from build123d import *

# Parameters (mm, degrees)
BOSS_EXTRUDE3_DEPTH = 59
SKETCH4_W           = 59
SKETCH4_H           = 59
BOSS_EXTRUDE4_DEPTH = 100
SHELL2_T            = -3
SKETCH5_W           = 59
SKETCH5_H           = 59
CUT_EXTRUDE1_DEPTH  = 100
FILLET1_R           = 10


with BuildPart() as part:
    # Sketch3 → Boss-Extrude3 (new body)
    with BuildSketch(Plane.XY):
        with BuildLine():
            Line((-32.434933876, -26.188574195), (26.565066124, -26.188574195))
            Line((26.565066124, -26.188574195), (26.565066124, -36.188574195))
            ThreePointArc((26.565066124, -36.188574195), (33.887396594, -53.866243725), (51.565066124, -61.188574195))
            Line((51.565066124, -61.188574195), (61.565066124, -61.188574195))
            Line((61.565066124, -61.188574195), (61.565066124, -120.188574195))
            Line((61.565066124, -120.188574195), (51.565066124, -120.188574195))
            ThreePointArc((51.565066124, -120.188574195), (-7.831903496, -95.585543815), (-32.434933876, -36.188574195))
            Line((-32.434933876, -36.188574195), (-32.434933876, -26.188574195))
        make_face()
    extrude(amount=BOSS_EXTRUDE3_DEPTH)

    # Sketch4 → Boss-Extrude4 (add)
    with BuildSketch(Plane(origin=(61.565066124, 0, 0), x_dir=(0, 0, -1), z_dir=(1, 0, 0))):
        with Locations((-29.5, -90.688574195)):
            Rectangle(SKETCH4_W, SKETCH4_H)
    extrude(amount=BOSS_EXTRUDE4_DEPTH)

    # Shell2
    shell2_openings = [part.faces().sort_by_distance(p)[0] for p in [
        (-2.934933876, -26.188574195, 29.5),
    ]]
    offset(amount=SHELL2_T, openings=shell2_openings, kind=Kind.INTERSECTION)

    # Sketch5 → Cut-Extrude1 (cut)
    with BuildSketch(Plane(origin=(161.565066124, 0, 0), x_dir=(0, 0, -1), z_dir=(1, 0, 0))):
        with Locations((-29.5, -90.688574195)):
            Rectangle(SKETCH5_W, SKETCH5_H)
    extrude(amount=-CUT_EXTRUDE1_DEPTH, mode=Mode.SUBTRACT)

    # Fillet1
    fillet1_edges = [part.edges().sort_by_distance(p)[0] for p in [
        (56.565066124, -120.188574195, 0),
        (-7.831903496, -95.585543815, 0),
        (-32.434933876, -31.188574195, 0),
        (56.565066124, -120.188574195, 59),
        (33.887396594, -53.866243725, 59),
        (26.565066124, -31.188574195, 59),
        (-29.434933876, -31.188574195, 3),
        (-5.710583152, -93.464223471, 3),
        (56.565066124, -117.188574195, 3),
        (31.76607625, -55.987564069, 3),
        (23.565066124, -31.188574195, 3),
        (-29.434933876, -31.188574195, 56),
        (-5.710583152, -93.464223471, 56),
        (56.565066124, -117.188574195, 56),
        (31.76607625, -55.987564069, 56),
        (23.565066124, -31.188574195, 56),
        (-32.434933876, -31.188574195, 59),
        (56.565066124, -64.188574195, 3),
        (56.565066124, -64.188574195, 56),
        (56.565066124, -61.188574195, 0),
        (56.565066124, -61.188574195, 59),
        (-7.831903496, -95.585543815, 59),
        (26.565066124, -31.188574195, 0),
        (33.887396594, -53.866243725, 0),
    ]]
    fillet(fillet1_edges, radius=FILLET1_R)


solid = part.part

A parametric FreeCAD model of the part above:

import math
import FreeCAD as App
import Part
import Sketcher
from FreeCAD import Vector
Q = App.Units.Quantity


def edges_at(feature, points):
    """Names of the edges that pass closest to the given points."""
    edges = feature.Shape.Edges
    near = lambda p: min(range(len(edges)), key=lambda i: edges[i].distToShape(Part.Vertex(*p))[0])
    return sorted({f"Edge{near(p) + 1}" for p in points})


def faces_at(feature, points):
    """Names of the faces that lie closest to the given points."""
    faces = feature.Shape.Faces
    near = lambda p: min(range(len(faces)), key=lambda i: faces[i].distToShape(Part.Vertex(*p))[0])
    return sorted({f"Face{near(p) + 1}" for p in points})


def add_polygon(sketch, points):
    """Adds a closed chain of lines whose ends are joined by coincident constraints."""
    first, n = sketch.GeometryCount, len(points)
    for a, b in zip(points, points[1:] + points[:1]):
        sketch.addGeometry(Part.LineSegment(App.Vector(*a, 0), App.Vector(*b, 0)), False)
    for i in range(n):
        sketch.addConstraint(Sketcher.Constraint("Coincident", first + i, 2, first + (i + 1) % n, 1))

doc = App.newDocument("Part")
body = doc.addObject("PartDesign::Body", "Body")

# Sketch on XY plane
sketch1 = doc.addObject("Sketcher::SketchObject", "Sketch")
body.addObject(sketch1)
sketch1.AttachmentSupport = (doc.XY_Plane, [""])
sketch1.MapMode = "FlatFace"
sketch1.addGeometry([
    Part.LineSegment(Vector(27, -26, 0), Vector(-32, -26, 0)),  # 0
    Part.LineSegment(Vector(-32, -26, 0), Vector(-32, -36, 0)),  # 1
    Part.ArcOfCircle(Part.Circle(Vector(52, -36, 0), Vector(0, 0, 1), 84), math.radians(180), math.radians(270)),  # 2
    Part.LineSegment(Vector(52, -120, 0), Vector(62, -120, 0)),  # 3
    Part.LineSegment(Vector(62, -120, 0), Vector(62, -61, 0)),  # 4
    Part.LineSegment(Vector(62, -61, 0), Vector(52, -61, 0)),  # 5
    Part.ArcOfCircle(Part.Circle(Vector(52, -36, 0), Vector(0, 0, 1), 25), math.radians(180), math.radians(270)),  # 6
    Part.LineSegment(Vector(27, -36, 0), Vector(27, -26, 0)),  # 7
], False)
sketch1.addConstraint([
    Sketcher.Constraint("Coincident", 0, 2, 1, 1),
    Sketcher.Constraint("Tangent", 1, 2, 2, 1),
    Sketcher.Constraint("Tangent", 2, 2, 3, 1),
    Sketcher.Constraint("Coincident", 3, 2, 4, 1),
    Sketcher.Constraint("Coincident", 4, 2, 5, 1),
    Sketcher.Constraint("Tangent", 5, 2, 6, 2),
    Sketcher.Constraint("Tangent", 6, 1, 7, 1),
    Sketcher.Constraint("Coincident", 7, 2, 0, 1),
    Sketcher.Constraint("Horizontal", 0),
    Sketcher.Constraint("Vertical", 1),
    Sketcher.Constraint("Horizontal", 3),
    Sketcher.Constraint("Vertical", 4),
    Sketcher.Constraint("Horizontal", 5),
    Sketcher.Constraint("Vertical", 7),
    Sketcher.Constraint("Coincident", 6, 3, 2, 3),
    Sketcher.Constraint("Equal", 5, 1),
    Sketcher.Constraint("Radius", 2, Q("84 mm")),
    Sketcher.Constraint("Radius", 6, Q("25 mm")),
    Sketcher.Constraint("DistanceX", 3, 1, 3, 2, Q("10 mm")),
    Sketcher.Constraint("DistanceX", -1, 1, 2, 3, Q("51.565066 mm")),
    Sketcher.Constraint("DistanceY", 2, 3, -1, 1, Q("36.188574 mm")),
])
pad1 = doc.addObject("PartDesign::Pad", "Pad")
body.addObject(pad1)
pad1.Profile = sketch1
pad1.Length = 59

# Sketch on YZ plane
sketch2 = doc.addObject("Sketcher::SketchObject", "Sketch001")
body.addObject(sketch2)
sketch2.AttachmentSupport = (doc.YZ_Plane, [""])
sketch2.MapMode = "FlatFace"
sketch2.AttachmentOffset = App.Placement(Vector(0, 0, 61.565066), App.Rotation())
add_polygon(sketch2, [(-61, 59), (-120, 59), (-120, 0), (-61, 0)])  # lines 0-3
sketch2.addConstraint([
    Sketcher.Constraint("Horizontal", 0),
    Sketcher.Constraint("Vertical", 1),
    Sketcher.Constraint("Horizontal", 2),
    Sketcher.Constraint("Vertical", 3),
    Sketcher.Constraint("PointOnObject", 1, 2, -1),
    Sketcher.Constraint("Equal", 2, 1),
    Sketcher.Constraint("DistanceX", 0, 2, 0, 1, Q("59 mm")),
    Sketcher.Constraint("DistanceX", 0, 2, -1, 1, Q("120.188574 mm")),
])
pad2 = doc.addObject("PartDesign::Pad", "Pad001")
body.addObject(pad2)
pad2.Profile = sketch2
pad2.Length = 100
doc.recompute()

thickness = doc.addObject("PartDesign::Thickness", "Thickness")
body.addObject(thickness)
thickness.Base = (pad2, faces_at(pad2, [(-2.935, -26.189, 29.5)]))
thickness.Value = 3
thickness.Reversed = True
thickness.Join = "Intersection"

# Sketch on YZ plane
sketch3 = doc.addObject("Sketcher::SketchObject", "Sketch002")
body.addObject(sketch3)
sketch3.AttachmentSupport = (doc.YZ_Plane, [""])
sketch3.MapMode = "FlatFace"
sketch3.AttachmentOffset = App.Placement(Vector(0, 0, 161.565066), App.Rotation())
add_polygon(sketch3, [(-61, 59), (-120, 59), (-120, 0), (-61, 0)])  # lines 0-3
sketch3.addConstraint([
    Sketcher.Constraint("Horizontal", 0),
    Sketcher.Constraint("Vertical", 1),
    Sketcher.Constraint("Horizontal", 2),
    Sketcher.Constraint("Vertical", 3),
    Sketcher.Constraint("PointOnObject", 1, 2, -1),
    Sketcher.Constraint("Equal", 2, 1),
    Sketcher.Constraint("DistanceX", 0, 2, 0, 1, Q("59 mm")),
    Sketcher.Constraint("DistanceX", 0, 2, -1, 1, Q("120.188574 mm")),
])
pocket1 = doc.addObject("PartDesign::Pocket", "Pocket")
body.addObject(pocket1)
pocket1.Profile = sketch3
pocket1.Length = 100
doc.recompute()

fillet = doc.addObject("PartDesign::Fillet", "Fillet")
body.addObject(fillet)
fillet.Base = (pocket1, edges_at(pocket1, [
    (56.565, -120.189, 0),
    (-7.832, -95.586, 0),
    (-32.435, -31.189, 0),
    (56.565, -120.189, 59),
    (33.887, -53.866, 59),
    (26.565, -31.189, 59),
    (-29.435, -31.189, 3),
    (-5.711, -93.464, 3),
    (56.565, -117.189, 3),
    (31.766, -55.988, 3),
    (23.565, -31.189, 3),
    (-29.435, -31.189, 56),
    (-5.711, -93.464, 56),
    (56.565, -117.189, 56),
    (31.766, -55.988, 56),
    (23.565, -31.189, 56),
    (-32.435, -31.189, 59),
    (56.565, -64.189, 3),
    (56.565, -64.189, 56),
    (56.565, -61.189, 0),
    (56.565, -61.189, 59),
    (-7.832, -95.586, 59),
    (26.565, -31.189, 0),
    (33.887, -53.866, 0),
]))
fillet.Radius = 10

doc.recompute()
